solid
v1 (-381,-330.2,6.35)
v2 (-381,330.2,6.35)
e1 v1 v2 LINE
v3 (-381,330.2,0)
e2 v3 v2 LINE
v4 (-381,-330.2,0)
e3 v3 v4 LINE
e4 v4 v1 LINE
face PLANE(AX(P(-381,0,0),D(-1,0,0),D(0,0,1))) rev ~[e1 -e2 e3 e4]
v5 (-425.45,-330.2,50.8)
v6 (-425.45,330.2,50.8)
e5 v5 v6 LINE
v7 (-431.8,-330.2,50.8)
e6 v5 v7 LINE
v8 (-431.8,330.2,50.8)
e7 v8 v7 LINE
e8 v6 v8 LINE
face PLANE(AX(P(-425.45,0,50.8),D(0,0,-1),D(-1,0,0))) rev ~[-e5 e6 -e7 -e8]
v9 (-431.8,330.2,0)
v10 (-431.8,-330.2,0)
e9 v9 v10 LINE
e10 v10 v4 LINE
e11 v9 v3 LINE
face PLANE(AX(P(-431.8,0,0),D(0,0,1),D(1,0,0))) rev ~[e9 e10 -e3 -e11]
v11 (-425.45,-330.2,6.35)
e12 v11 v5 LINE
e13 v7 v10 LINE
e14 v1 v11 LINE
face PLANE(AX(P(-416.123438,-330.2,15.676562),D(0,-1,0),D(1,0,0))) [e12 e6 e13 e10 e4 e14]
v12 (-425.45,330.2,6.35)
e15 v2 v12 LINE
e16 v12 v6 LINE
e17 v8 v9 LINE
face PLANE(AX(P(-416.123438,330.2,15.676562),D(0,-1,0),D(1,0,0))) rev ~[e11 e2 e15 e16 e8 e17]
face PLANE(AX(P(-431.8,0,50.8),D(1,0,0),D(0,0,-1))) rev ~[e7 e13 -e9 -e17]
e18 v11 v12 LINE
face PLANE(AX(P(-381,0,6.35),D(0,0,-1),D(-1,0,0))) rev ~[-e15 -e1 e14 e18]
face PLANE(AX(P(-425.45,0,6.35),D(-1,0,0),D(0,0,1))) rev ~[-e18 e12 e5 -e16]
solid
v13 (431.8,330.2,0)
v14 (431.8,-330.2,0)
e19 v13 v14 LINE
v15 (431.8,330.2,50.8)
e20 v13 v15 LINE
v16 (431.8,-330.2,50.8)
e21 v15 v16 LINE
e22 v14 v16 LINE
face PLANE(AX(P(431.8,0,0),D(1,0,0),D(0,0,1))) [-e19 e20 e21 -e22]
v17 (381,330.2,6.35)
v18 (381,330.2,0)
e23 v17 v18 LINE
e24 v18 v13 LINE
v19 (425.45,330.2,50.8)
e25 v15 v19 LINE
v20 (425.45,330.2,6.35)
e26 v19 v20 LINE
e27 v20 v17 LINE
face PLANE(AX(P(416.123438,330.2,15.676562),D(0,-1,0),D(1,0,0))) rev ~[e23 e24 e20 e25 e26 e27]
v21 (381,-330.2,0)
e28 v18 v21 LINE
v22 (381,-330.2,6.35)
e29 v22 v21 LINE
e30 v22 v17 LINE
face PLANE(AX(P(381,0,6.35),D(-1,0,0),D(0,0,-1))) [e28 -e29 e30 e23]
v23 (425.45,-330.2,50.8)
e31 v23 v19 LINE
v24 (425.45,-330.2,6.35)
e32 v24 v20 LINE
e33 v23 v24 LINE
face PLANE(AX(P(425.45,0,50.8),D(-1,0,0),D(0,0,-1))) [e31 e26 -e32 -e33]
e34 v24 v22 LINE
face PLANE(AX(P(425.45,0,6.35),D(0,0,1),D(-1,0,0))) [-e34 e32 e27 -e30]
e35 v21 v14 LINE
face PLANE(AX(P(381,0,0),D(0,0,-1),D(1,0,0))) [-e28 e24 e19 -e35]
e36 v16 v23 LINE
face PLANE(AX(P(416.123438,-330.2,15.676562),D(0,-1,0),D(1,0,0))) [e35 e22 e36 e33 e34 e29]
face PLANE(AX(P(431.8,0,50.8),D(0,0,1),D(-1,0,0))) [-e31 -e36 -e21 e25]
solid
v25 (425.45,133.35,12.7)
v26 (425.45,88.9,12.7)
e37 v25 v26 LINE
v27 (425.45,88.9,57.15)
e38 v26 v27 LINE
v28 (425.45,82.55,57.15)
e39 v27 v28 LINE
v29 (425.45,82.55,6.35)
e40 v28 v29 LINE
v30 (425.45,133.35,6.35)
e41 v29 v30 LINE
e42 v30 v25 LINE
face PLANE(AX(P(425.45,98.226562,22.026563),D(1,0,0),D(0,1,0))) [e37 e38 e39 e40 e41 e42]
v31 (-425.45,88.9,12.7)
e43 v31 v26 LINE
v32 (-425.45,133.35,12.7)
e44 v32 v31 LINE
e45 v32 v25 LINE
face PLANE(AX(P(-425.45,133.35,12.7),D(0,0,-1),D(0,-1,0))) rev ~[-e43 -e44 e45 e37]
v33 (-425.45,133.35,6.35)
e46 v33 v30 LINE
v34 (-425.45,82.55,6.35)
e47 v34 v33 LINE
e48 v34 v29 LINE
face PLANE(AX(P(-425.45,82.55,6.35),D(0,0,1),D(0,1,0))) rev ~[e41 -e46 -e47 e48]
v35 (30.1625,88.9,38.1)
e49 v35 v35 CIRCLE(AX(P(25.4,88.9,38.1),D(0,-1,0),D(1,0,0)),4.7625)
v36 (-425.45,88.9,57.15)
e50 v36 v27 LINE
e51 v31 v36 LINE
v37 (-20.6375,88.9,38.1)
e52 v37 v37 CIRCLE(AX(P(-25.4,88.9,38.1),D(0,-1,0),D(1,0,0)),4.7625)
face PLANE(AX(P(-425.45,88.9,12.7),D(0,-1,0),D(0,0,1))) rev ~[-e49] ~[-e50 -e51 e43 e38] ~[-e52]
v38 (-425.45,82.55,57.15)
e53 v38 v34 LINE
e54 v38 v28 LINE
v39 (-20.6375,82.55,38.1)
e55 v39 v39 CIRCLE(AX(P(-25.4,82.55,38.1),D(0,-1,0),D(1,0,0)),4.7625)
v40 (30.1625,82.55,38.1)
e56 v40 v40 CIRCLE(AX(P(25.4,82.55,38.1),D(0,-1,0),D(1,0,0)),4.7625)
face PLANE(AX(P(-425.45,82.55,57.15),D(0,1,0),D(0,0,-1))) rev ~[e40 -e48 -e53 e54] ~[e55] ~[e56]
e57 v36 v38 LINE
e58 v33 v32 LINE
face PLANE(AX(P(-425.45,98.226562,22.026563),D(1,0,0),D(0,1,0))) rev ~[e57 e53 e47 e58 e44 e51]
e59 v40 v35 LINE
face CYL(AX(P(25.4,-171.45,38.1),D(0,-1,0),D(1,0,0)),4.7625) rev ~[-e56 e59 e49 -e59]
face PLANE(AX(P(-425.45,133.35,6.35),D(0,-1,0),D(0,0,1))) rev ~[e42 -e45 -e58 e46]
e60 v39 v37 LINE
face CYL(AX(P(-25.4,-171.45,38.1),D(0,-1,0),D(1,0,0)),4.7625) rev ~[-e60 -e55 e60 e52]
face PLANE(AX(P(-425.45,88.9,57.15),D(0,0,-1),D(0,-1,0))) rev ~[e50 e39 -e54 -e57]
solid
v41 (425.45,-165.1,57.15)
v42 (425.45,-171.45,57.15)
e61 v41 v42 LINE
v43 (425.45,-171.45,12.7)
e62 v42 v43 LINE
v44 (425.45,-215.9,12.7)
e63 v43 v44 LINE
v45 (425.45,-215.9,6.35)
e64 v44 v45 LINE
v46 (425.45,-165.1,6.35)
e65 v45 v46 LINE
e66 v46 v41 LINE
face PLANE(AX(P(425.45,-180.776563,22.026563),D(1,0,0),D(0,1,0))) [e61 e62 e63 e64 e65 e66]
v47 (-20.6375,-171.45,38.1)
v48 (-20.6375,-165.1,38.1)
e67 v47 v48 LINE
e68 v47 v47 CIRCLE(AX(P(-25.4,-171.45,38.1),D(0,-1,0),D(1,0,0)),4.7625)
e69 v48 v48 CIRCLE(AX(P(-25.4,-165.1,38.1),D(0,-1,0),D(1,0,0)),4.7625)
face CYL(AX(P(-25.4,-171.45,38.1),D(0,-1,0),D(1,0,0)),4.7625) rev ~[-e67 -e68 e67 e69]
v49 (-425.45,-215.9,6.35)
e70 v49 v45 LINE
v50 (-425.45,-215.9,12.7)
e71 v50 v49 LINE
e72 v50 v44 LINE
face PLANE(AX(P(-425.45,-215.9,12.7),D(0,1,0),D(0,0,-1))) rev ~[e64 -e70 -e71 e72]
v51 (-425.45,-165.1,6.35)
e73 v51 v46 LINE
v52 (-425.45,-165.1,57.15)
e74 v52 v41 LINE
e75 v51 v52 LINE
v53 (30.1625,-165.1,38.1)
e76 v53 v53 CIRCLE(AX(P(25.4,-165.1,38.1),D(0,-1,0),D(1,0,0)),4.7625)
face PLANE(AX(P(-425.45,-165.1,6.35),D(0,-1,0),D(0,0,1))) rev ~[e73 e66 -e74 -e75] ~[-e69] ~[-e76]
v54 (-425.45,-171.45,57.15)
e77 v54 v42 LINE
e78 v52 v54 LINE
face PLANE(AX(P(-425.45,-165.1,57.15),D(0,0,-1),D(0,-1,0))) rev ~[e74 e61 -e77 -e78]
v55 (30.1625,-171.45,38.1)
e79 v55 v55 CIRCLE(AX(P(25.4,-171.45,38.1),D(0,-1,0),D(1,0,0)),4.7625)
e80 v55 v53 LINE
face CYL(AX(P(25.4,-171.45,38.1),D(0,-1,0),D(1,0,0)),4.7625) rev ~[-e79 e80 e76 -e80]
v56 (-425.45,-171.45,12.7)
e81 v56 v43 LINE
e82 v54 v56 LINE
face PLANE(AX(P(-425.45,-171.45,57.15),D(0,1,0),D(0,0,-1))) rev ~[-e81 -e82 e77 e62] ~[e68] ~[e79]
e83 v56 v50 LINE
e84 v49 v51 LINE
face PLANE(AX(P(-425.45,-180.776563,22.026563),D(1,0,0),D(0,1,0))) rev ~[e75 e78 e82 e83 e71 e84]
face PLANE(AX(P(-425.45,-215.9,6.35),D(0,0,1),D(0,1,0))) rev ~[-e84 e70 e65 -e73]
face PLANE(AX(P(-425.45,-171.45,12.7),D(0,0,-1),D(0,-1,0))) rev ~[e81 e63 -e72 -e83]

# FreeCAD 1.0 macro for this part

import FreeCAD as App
import Part
import Sketcher

V = App.Vector
Q = App.Units.Quantity

doc = App.newDocument("Part")
body = doc.addObject("PartDesign::Body", "Body")
body.AllowCompound = True

sketch1 = body.newObject("Sketcher::SketchObject", "Sketch")
sketch1.AttachmentSupport = (doc.getObject("XZ_Plane"), [""])
sketch1.MapMode = "FlatFace"
sketch1.addGeometry(Part.LineSegment(V(-425, 51, 0), V(-432, 51, 0)), False)
sketch1.addGeometry(Part.LineSegment(V(-432, 51, 0), V(-432, 0, 0)), False)
sketch1.addGeometry(Part.LineSegment(V(-432, 0, 0), V(-381, 0, 0)), False)
sketch1.addGeometry(Part.LineSegment(V(-381, 0, 0), V(-381, 6, 0)), False)
sketch1.addGeometry(Part.LineSegment(V(-381, 6, 0), V(-425, 6, 0)), False)
sketch1.addGeometry(Part.LineSegment(V(-425, 6, 0), V(-425, 51, 0)), False)
sketch1.addGeometry(Part.LineSegment(V(381, 6, 0), V(381, 0, 0)), False)
sketch1.addGeometry(Part.LineSegment(V(381, 0, 0), V(432, 0, 0)), False)
sketch1.addGeometry(Part.LineSegment(V(432, 0, 0), V(432, 51, 0)), False)
sketch1.addGeometry(Part.LineSegment(V(432, 51, 0), V(425, 51, 0)), False)
sketch1.addGeometry(Part.LineSegment(V(425, 51, 0), V(425, 6, 0)), False)
sketch1.addGeometry(Part.LineSegment(V(425, 6, 0), V(381, 6, 0)), False)
sketch1.addConstraint(Sketcher.Constraint("Coincident", 0, 2, 1, 1))
sketch1.addConstraint(Sketcher.Constraint("Coincident", 1, 2, 2, 1))
sketch1.addConstraint(Sketcher.Constraint("Coincident", 2, 2, 3, 1))
sketch1.addConstraint(Sketcher.Constraint("Coincident", 3, 2, 4, 1))
sketch1.addConstraint(Sketcher.Constraint("Coincident", 4, 2, 5, 1))
sketch1.addConstraint(Sketcher.Constraint("Coincident", 5, 2, 0, 1))
sketch1.addConstraint(Sketcher.Constraint("Coincident", 6, 2, 7, 1))
sketch1.addConstraint(Sketcher.Constraint("Coincident", 7, 2, 8, 1))
sketch1.addConstraint(Sketcher.Constraint("Coincident", 8, 2, 9, 1))
sketch1.addConstraint(Sketcher.Constraint("Coincident", 9, 2, 10, 1))
sketch1.addConstraint(Sketcher.Constraint("Coincident", 10, 2, 11, 1))
sketch1.addConstraint(Sketcher.Constraint("Coincident", 11, 2, 6, 1))
sketch1.addConstraint(Sketcher.Constraint("Horizontal", 0))
sketch1.addConstraint(Sketcher.Constraint("Vertical", 1))
sketch1.addConstraint(Sketcher.Constraint("Horizontal", 2))
sketch1.addConstraint(Sketcher.Constraint("Vertical", 3))
sketch1.addConstraint(Sketcher.Constraint("Horizontal", 4))
sketch1.addConstraint(Sketcher.Constraint("Vertical", 5))
sketch1.addConstraint(Sketcher.Constraint("Vertical", 6))
sketch1.addConstraint(Sketcher.Constraint("Horizontal", 7))
sketch1.addConstraint(Sketcher.Constraint("Vertical", 8))
sketch1.addConstraint(Sketcher.Constraint("Horizontal", 9))
sketch1.addConstraint(Sketcher.Constraint("Vertical", 10))
sketch1.addConstraint(Sketcher.Constraint("Horizontal", 11))
sketch1.addConstraint(Sketcher.Constraint("Symmetric", 2, 2, 6, 2, -1, 1))
sketch1.addConstraint(Sketcher.Constraint("Symmetric", 1, 2, 7, 2, -2))
sketch1.addConstraint(Sketcher.Constraint("Symmetric", 5, 2, 9, 2, -2))
sketch1.addConstraint(Sketcher.Constraint("Horizontal", 4, 2, 10, 2))
sketch1.addConstraint(Sketcher.Constraint("Equal", 7, 1))
sketch1.addConstraint(Sketcher.Constraint("Equal", 9, 3))
sketch1.addConstraint(Sketcher.Constraint("DistanceX", 2, 1, 2, 2, Q("2 in")))
sketch1.addConstraint(Sketcher.Constraint("DistanceX", 0, 2, -1, 1, Q("17 in")))
sketch1.addConstraint(Sketcher.Constraint("DistanceX", 0, 2, 0, 1, Q("0.25 in")))
pad1 = body.newObject("PartDesign::Pad", "Pad")
pad1.Profile = sketch1
pad1.Length = Q("26 in")
pad1.Midplane = True
body2 = doc.addObject("PartDesign::Body", "Body001")
body2.AllowCompound = True

sketch2 = body2.newObject("Sketcher::SketchObject", "Sketch001")
sketch2.AttachmentSupport = (doc.getObject("YZ_Plane001"), [""])
sketch2.MapMode = "FlatFace"
sketch2.AttachmentOffset = App.Placement(V(0, 0, -16.75 * 25.4), App.Rotation())
sketch2.addGeometry(Part.LineSegment(V(-216, 6, 0), V(-165, 6, 0)), False)
sketch2.addGeometry(Part.LineSegment(V(-165, 6, 0), V(-165, 57, 0)), False)
sketch2.addGeometry(Part.LineSegment(V(-165, 57, 0), V(-171, 57, 0)), False)
sketch2.addGeometry(Part.LineSegment(V(-171, 57, 0), V(-171, 13, 0)), False)
sketch2.addGeometry(Part.LineSegment(V(-171, 13, 0), V(-216, 13, 0)), False)
sketch2.addGeometry(Part.LineSegment(V(-216, 13, 0), V(-216, 6, 0)), False)
sketch2.addGeometry(Part.LineSegment(V(89, 57, 0), V(83, 57, 0)), False)
sketch2.addGeometry(Part.LineSegment(V(83, 57, 0), V(83, 6, 0)), False)
sketch2.addGeometry(Part.LineSegment(V(83, 6, 0), V(133, 6, 0)), False)
sketch2.addGeometry(Part.LineSegment(V(133, 6, 0), V(133, 13, 0)), False)
sketch2.addGeometry(Part.LineSegment(V(133, 13, 0), V(89, 13, 0)), False)
sketch2.addGeometry(Part.LineSegment(V(89, 13, 0), V(89, 57, 0)), False)
sketch2.addConstraint(Sketcher.Constraint("Coincident", 0, 2, 1, 1))
sketch2.addConstraint(Sketcher.Constraint("Coincident", 1, 2, 2, 1))
sketch2.addConstraint(Sketcher.Constraint("Coincident", 2, 2, 3, 1))
sketch2.addConstraint(Sketcher.Constraint("Coincident", 3, 2, 4, 1))
sketch2.addConstraint(Sketcher.Constraint("Coincident", 4, 2, 5, 1))
sketch2.addConstraint(Sketcher.Constraint("Coincident", 5, 2, 0, 1))
sketch2.addConstraint(Sketcher.Constraint("Coincident", 6, 2, 7, 1))
sketch2.addConstraint(Sketcher.Constraint("Coincident", 7, 2, 8, 1))
sketch2.addConstraint(Sketcher.Constraint("Coincident", 8, 2, 9, 1))
sketch2.addConstraint(Sketcher.Constraint("Coincident", 9, 2, 10, 1))
sketch2.addConstraint(Sketcher.Constraint("Coincident", 10, 2, 11, 1))
sketch2.addConstraint(Sketcher.Constraint("Coincident", 11, 2, 6, 1))
sketch2.addConstraint(Sketcher.Constraint("Horizontal", 0))
sketch2.addConstraint(Sketcher.Constraint("Vertical", 1))
sketch2.addConstraint(Sketcher.Constraint("Horizontal", 2))
sketch2.addConstraint(Sketcher.Constraint("Vertical", 3))
sketch2.addConstraint(Sketcher.Constraint("Horizontal", 4))
sketch2.addConstraint(Sketcher.Constraint("Vertical", 5))
sketch2.addConstraint(Sketcher.Constraint("Horizontal", 6))
sketch2.addConstraint(Sketcher.Constraint("Vertical", 7))
sketch2.addConstraint(Sketcher.Constraint("Horizontal", 8))
sketch2.addConstraint(Sketcher.Constraint("Vertical", 9))
sketch2.addConstraint(Sketcher.Constraint("Horizontal", 10))
sketch2.addConstraint(Sketcher.Constraint("Vertical", 11))
sketch2.addConstraint(Sketcher.Constraint("Horizontal", 2, 2, 6, 2))
sketch2.addConstraint(Sketcher.Constraint("Horizontal", 5, 2, 7, 2))
sketch2.addConstraint(Sketcher.Constraint("Horizontal", 4, 2, 9, 2))
sketch2.addConstraint(Sketcher.Constraint("Equal", 2, 6))
sketch2.addConstraint(Sketcher.Constraint("Equal", 0, 8))
sketch2.addConstraint(Sketcher.Constraint("Equal", 8, 1))
sketch2.addConstraint(Sketcher.Constraint("Equal", 10, 3))
sketch2.addConstraint(Sketcher.Constraint("DistanceX", 0, 1, 0, 2, Q("2 in")))
sketch2.addConstraint(Sketcher.Constraint("DistanceX", 2, 2, 6, 2, Q("10 in")))
sketch2.addConstraint(Sketcher.Constraint("DistanceX", 2, 2, 2, 1, Q("0.25 in")))
sketch2.addConstraint(Sketcher.Constraint("DistanceX", 0, 2, -1, 1, Q("6.5 in")))
sketch2.addConstraint(Sketcher.Constraint("DistanceY", -1, 1, 3, 2, Q("0.5 in")))
pad2 = body2.newObject("PartDesign::Pad", "Pad001")
pad2.Profile = sketch2
pad2.Length = Q("33.5 in")

sketch3 = body2.newObject("Sketcher::SketchObject", "Sketch002")
sketch3.AttachmentSupport = (doc.getObject("XZ_Plane001"), [""])
sketch3.MapMode = "FlatFace"
sketch3.AttachmentOffset = App.Placement(V(0, 0, 6.75 * 25.4), App.Rotation())
sketch3.addGeometry(Part.Circle(V(-25.4, 38.1, 0), V(0, 0, 1), 4.8), False)
sketch3.addGeometry(Part.Circle(V(25.4, 38.1, 0), V(0, 0, 1), 4.8), False)
sketch3.addConstraint(Sketcher.Constraint("Equal", 0, 1))
sketch3.addConstraint(Sketcher.Constraint("Symmetric", 0, 3, 1, 3, -2))
sketch3.addConstraint(Sketcher.Constraint("Diameter", 0, Q("0.375 in")))
sketch3.addConstraint(Sketcher.Constraint("DistanceX", 0, 3, -1, 1, Q("1 in")))
sketch3.addConstraint(Sketcher.Constraint("DistanceY", -1, 1, 0, 3, Q("1.5 in")))
pocket1 = body2.newObject("PartDesign::Pocket", "Pocket")
pocket1.Profile = sketch3
pocket1.Type = "ThroughAll"

doc.recompute()
